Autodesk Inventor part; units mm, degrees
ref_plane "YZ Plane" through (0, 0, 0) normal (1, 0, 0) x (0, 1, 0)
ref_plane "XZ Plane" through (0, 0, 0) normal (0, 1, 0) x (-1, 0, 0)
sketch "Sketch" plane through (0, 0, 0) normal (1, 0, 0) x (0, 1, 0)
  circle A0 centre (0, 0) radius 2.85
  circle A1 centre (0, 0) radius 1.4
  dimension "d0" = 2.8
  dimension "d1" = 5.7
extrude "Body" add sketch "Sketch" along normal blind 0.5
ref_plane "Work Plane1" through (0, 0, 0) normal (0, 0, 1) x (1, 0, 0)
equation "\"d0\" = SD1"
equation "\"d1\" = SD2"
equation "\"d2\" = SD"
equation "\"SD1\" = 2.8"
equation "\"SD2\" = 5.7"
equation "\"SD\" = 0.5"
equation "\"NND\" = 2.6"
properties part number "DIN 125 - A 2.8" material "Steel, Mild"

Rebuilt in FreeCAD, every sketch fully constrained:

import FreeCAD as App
import Part
import Sketcher

doc = App.newDocument("Part")
body = doc.addObject("PartDesign::Body", "Body")

# Sketch on YZ plane
sketch1 = doc.addObject("Sketcher::SketchObject", "Sketch")
body.addObject(sketch1)
sketch1.AttachmentSupport = (doc.YZ_Plane, [""])
sketch1.MapMode = "FlatFace"
sketch1.addGeometry([
    Part.Circle(App.Vector(0, 0, 0), App.Vector(0, 0, 1), 2.9),
    Part.Circle(App.Vector(0, 0, 0), App.Vector(0, 0, 1), 1.4),
], False)
sketch1.addConstraint([
    Sketcher.Constraint("Coincident", 0, 3, -1, 1),
    Sketcher.Constraint("Coincident", 1, 3, -1, 1),
    Sketcher.Constraint("Diameter", 0, 5.7),
    Sketcher.Constraint("Diameter", 1, 2.8),
])
pad1 = doc.addObject("PartDesign::Pad", "Pad")
body.addObject(pad1)
pad1.Profile = sketch1
pad1.Length = 0.5

doc.recompute()
